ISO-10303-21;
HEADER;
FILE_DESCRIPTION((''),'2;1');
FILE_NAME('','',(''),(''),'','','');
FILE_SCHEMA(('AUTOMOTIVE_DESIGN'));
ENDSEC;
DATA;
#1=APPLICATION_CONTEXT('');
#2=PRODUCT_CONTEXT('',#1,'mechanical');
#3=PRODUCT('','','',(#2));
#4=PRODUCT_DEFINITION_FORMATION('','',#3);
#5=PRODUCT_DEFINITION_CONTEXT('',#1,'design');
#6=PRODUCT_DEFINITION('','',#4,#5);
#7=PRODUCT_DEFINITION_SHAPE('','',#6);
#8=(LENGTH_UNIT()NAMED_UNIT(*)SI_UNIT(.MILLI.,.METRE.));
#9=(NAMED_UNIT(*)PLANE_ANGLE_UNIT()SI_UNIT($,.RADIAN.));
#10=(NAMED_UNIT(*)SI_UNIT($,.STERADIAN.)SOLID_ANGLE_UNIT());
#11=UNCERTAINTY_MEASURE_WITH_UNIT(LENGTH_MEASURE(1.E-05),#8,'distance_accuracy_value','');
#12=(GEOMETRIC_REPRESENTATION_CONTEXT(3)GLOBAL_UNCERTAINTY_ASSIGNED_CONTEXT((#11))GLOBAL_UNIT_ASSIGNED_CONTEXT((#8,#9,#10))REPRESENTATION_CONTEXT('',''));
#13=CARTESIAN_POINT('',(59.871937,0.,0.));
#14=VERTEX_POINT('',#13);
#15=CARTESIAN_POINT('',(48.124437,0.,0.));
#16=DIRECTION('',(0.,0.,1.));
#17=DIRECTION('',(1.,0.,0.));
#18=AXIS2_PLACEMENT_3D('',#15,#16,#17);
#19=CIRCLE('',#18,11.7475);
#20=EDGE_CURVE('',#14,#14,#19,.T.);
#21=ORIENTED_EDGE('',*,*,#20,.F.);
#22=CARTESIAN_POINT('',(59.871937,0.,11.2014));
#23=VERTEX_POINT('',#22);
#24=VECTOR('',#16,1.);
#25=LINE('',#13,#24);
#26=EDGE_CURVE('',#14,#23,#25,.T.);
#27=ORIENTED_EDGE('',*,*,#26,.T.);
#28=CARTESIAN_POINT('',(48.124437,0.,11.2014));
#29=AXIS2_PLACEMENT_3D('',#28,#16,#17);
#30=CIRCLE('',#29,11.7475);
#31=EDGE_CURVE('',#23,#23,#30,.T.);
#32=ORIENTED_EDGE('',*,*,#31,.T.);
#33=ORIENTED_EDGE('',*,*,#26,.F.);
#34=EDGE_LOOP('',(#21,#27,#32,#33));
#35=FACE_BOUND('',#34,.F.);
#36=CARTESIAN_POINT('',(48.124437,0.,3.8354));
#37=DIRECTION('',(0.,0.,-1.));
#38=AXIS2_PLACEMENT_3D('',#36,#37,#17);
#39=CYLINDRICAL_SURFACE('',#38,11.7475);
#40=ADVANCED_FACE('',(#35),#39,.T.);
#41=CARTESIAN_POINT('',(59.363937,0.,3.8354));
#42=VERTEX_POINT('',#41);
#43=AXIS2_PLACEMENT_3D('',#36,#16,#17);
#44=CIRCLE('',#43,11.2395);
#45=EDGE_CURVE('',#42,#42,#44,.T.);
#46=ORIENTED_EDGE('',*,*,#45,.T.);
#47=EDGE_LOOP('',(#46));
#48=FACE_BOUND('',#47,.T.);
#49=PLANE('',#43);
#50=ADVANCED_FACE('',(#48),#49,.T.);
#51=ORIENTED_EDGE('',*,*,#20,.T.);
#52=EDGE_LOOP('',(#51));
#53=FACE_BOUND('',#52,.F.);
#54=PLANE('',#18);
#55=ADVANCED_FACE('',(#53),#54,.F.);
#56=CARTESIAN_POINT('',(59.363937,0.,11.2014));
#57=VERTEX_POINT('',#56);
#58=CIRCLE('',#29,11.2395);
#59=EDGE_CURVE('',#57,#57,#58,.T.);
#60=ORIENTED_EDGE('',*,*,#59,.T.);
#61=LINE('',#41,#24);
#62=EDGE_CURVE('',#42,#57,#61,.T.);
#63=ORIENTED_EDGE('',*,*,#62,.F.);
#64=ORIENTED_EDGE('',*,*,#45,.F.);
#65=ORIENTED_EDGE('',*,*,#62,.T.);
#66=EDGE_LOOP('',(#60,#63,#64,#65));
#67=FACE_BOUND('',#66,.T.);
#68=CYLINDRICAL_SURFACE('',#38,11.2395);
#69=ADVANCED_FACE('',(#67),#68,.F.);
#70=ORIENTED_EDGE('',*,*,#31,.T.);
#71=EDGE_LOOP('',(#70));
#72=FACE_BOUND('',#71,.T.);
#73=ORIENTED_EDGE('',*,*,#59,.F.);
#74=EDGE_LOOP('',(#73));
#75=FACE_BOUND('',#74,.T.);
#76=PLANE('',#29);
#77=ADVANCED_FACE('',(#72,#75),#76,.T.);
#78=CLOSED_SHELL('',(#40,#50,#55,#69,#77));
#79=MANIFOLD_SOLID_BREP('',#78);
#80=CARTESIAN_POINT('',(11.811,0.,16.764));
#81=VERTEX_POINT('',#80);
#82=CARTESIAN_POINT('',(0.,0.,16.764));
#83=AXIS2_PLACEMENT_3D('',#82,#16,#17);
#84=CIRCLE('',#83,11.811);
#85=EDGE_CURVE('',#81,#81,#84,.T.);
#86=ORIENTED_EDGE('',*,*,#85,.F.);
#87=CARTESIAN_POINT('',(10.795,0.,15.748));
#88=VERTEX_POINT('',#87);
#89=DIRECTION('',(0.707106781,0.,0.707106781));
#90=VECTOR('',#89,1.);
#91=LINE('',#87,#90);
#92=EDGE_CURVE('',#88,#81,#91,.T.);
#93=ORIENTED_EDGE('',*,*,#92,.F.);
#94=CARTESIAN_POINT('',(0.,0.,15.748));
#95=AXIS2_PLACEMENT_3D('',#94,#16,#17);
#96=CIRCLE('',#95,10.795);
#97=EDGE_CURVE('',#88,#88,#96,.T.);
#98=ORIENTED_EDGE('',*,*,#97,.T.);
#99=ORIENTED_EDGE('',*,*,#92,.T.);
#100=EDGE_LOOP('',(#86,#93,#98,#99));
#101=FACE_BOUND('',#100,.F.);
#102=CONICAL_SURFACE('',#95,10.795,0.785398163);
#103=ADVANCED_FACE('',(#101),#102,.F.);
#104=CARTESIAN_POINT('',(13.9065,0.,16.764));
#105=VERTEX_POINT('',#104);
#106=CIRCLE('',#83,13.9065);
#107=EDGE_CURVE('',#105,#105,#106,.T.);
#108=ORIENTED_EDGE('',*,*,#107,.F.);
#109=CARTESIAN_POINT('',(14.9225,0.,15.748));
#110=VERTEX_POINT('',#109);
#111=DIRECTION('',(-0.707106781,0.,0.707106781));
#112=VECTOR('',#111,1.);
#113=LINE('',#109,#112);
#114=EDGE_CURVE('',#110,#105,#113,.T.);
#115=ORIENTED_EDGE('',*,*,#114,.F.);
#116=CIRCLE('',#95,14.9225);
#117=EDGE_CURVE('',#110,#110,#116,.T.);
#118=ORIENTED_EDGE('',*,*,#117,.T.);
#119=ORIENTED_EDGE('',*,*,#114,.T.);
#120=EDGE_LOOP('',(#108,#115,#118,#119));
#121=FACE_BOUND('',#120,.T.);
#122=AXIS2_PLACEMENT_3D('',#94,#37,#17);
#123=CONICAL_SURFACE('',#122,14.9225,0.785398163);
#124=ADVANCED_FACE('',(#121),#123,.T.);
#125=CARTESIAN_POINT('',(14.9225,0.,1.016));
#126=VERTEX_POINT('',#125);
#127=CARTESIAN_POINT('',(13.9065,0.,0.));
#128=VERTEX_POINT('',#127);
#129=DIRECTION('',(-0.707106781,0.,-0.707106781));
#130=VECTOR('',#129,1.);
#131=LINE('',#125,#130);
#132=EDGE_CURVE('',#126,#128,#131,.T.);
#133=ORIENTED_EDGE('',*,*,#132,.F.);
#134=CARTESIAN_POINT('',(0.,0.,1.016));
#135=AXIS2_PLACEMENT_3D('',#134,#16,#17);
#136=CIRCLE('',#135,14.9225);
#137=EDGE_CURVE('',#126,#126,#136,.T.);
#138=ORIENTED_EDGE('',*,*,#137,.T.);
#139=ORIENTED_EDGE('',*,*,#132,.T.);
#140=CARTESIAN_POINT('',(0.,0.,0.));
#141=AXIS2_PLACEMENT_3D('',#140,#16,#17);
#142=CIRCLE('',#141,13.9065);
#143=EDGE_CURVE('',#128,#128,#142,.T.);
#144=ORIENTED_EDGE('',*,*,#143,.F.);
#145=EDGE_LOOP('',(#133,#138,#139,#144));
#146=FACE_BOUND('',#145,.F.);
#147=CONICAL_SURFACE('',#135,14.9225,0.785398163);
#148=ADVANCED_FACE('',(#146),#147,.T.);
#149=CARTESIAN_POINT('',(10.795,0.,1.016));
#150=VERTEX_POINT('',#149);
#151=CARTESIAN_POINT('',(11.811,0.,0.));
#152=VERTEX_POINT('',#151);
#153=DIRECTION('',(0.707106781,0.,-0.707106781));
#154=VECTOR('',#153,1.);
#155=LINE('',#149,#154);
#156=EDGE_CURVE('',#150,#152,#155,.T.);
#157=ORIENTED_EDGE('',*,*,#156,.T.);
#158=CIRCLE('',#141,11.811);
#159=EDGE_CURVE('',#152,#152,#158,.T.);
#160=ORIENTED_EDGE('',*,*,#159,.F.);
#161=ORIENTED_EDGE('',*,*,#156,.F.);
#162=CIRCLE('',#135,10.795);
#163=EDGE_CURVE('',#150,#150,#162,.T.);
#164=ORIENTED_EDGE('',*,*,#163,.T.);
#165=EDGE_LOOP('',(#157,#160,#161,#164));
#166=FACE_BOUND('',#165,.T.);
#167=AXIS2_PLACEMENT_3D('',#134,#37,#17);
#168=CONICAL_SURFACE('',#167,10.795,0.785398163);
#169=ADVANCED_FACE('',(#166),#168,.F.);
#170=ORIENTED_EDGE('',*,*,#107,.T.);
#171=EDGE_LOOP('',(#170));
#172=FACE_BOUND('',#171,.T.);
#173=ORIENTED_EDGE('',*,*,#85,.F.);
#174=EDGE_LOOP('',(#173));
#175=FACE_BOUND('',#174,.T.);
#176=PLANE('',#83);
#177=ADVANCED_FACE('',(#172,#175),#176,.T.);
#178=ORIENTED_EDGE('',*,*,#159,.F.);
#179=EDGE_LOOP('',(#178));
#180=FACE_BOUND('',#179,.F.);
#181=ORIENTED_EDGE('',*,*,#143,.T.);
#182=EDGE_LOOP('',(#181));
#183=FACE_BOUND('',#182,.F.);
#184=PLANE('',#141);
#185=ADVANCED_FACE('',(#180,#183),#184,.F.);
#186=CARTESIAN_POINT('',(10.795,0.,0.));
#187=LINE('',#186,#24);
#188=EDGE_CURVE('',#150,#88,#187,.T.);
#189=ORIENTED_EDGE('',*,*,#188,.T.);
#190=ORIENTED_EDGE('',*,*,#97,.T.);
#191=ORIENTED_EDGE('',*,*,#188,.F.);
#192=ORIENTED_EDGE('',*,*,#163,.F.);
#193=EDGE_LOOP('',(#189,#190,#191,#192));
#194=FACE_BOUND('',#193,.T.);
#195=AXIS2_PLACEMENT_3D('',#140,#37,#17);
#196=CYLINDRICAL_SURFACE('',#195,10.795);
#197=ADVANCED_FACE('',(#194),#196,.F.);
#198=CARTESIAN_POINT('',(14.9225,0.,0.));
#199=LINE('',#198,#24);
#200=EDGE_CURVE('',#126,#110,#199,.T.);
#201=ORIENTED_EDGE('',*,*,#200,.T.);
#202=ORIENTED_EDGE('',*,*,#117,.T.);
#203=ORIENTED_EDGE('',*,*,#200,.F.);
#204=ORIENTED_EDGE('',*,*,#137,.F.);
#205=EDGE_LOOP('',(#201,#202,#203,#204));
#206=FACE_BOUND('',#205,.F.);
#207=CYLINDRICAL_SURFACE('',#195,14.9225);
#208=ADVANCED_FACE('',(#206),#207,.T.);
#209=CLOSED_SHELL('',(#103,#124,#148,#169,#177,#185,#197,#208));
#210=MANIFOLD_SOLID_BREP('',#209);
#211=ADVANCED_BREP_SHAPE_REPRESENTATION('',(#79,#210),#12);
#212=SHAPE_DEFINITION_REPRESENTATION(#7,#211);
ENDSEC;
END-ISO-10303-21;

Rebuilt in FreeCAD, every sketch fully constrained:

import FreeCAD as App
import Part
import Sketcher
Q = App.Units.Quantity


def edges_at(feature, points):
    """Names of the edges that pass closest to the given points."""
    edges = feature.Shape.Edges
    near = lambda p: min(range(len(edges)), key=lambda i: edges[i].distToShape(Part.Vertex(*p))[0])
    return sorted({f"Edge{near(p) + 1}" for p in points})

doc = App.newDocument("Part")
body = doc.addObject("PartDesign::Body", "Body")

sketch1 = body.newObject("Sketcher::SketchObject", "Sketch")
sketch1.AttachmentSupport = (doc.getObject("XY_Plane"), [""])
sketch1.MapMode = "FlatFace"
sketch1.addGeometry([
    Part.Circle(App.Vector(0, 0, 0), App.Vector(0, 0, 1), 15),
    Part.Circle(App.Vector(0, 0, 0), App.Vector(0, 0, 1), 11),
], False)
sketch1.addConstraint([
    Sketcher.Constraint("Coincident", 0, 3, -1, 1),
    Sketcher.Constraint("Coincident", 1, 3, -1, 1),
    Sketcher.Constraint("Diameter", 1, Q("0.85 in")),
    Sketcher.Constraint("Diameter", 0, Q("1.175 in")),
])
pad1 = body.newObject("PartDesign::Pad", "Pad")
pad1.Profile = sketch1
pad1.Length = Q("0.66 in")
doc.recompute()

chamfer = body.newObject("PartDesign::Chamfer", "Chamfer")
chamfer.Base = (pad1, edges_at(pad1, [
    (-10.795, 0, 16.764),
    (-14.922, 0, 16.764),
    (-10.795, 0, 0),
    (-14.922, 0, 0),
]))
chamfer.Size = Q("0.04 in")
body2 = doc.addObject("PartDesign::Body", "Body001")

sketch2 = body2.newObject("Sketcher::SketchObject", "Sketch001")
sketch2.AttachmentSupport = (doc.getObject("XY_Plane001"), [""])
sketch2.MapMode = "FlatFace"
sketch2.addGeometry(Part.Circle(App.Vector(48, 0, 0), App.Vector(0, 0, 1), 12), False)
sketch2.addConstraint([
    Sketcher.Constraint("PointOnObject", 0, 3, -1),
    Sketcher.Constraint("Diameter", 0, Q("0.925 in")),
    Sketcher.Constraint("DistanceX", -1, 1, 0, 3, 48.124437),
])
pad2 = body2.newObject("PartDesign::Pad", "Pad001")
pad2.Profile = sketch2
pad2.Length = Q("0.151 in")

sketch3 = body2.newObject("Sketcher::SketchObject", "Sketch002")
sketch3.AttachmentSupport = (doc.getObject("XY_Plane001"), [""])
sketch3.MapMode = "FlatFace"
sketch3.AttachmentOffset = App.Placement(App.Vector(0, 0, 0.151 * 25.4), App.Rotation())
sketch3.addGeometry([
    Part.Circle(App.Vector(48, 0, 0), App.Vector(0, 0, 1), 12),
    Part.Circle(App.Vector(48, 0, 0), App.Vector(0, 0, 1), 11),
], False)
sketch3.addConstraint([
    Sketcher.Constraint("Coincident", 1, 3, 0, 3),
    Sketcher.Constraint("PointOnObject", 0, 3, -1),
    Sketcher.Constraint("Diameter", 0, Q("0.925 in")),
    Sketcher.Constraint("Diameter", 1, Q("0.885 in")),
    Sketcher.Constraint("DistanceX", -1, 1, 0, 3, 48.124437),
])
pad3 = body2.newObject("PartDesign::Pad", "Pad002")
pad3.Profile = sketch3
pad3.Length = Q("0.29 in")

doc.recompute()
